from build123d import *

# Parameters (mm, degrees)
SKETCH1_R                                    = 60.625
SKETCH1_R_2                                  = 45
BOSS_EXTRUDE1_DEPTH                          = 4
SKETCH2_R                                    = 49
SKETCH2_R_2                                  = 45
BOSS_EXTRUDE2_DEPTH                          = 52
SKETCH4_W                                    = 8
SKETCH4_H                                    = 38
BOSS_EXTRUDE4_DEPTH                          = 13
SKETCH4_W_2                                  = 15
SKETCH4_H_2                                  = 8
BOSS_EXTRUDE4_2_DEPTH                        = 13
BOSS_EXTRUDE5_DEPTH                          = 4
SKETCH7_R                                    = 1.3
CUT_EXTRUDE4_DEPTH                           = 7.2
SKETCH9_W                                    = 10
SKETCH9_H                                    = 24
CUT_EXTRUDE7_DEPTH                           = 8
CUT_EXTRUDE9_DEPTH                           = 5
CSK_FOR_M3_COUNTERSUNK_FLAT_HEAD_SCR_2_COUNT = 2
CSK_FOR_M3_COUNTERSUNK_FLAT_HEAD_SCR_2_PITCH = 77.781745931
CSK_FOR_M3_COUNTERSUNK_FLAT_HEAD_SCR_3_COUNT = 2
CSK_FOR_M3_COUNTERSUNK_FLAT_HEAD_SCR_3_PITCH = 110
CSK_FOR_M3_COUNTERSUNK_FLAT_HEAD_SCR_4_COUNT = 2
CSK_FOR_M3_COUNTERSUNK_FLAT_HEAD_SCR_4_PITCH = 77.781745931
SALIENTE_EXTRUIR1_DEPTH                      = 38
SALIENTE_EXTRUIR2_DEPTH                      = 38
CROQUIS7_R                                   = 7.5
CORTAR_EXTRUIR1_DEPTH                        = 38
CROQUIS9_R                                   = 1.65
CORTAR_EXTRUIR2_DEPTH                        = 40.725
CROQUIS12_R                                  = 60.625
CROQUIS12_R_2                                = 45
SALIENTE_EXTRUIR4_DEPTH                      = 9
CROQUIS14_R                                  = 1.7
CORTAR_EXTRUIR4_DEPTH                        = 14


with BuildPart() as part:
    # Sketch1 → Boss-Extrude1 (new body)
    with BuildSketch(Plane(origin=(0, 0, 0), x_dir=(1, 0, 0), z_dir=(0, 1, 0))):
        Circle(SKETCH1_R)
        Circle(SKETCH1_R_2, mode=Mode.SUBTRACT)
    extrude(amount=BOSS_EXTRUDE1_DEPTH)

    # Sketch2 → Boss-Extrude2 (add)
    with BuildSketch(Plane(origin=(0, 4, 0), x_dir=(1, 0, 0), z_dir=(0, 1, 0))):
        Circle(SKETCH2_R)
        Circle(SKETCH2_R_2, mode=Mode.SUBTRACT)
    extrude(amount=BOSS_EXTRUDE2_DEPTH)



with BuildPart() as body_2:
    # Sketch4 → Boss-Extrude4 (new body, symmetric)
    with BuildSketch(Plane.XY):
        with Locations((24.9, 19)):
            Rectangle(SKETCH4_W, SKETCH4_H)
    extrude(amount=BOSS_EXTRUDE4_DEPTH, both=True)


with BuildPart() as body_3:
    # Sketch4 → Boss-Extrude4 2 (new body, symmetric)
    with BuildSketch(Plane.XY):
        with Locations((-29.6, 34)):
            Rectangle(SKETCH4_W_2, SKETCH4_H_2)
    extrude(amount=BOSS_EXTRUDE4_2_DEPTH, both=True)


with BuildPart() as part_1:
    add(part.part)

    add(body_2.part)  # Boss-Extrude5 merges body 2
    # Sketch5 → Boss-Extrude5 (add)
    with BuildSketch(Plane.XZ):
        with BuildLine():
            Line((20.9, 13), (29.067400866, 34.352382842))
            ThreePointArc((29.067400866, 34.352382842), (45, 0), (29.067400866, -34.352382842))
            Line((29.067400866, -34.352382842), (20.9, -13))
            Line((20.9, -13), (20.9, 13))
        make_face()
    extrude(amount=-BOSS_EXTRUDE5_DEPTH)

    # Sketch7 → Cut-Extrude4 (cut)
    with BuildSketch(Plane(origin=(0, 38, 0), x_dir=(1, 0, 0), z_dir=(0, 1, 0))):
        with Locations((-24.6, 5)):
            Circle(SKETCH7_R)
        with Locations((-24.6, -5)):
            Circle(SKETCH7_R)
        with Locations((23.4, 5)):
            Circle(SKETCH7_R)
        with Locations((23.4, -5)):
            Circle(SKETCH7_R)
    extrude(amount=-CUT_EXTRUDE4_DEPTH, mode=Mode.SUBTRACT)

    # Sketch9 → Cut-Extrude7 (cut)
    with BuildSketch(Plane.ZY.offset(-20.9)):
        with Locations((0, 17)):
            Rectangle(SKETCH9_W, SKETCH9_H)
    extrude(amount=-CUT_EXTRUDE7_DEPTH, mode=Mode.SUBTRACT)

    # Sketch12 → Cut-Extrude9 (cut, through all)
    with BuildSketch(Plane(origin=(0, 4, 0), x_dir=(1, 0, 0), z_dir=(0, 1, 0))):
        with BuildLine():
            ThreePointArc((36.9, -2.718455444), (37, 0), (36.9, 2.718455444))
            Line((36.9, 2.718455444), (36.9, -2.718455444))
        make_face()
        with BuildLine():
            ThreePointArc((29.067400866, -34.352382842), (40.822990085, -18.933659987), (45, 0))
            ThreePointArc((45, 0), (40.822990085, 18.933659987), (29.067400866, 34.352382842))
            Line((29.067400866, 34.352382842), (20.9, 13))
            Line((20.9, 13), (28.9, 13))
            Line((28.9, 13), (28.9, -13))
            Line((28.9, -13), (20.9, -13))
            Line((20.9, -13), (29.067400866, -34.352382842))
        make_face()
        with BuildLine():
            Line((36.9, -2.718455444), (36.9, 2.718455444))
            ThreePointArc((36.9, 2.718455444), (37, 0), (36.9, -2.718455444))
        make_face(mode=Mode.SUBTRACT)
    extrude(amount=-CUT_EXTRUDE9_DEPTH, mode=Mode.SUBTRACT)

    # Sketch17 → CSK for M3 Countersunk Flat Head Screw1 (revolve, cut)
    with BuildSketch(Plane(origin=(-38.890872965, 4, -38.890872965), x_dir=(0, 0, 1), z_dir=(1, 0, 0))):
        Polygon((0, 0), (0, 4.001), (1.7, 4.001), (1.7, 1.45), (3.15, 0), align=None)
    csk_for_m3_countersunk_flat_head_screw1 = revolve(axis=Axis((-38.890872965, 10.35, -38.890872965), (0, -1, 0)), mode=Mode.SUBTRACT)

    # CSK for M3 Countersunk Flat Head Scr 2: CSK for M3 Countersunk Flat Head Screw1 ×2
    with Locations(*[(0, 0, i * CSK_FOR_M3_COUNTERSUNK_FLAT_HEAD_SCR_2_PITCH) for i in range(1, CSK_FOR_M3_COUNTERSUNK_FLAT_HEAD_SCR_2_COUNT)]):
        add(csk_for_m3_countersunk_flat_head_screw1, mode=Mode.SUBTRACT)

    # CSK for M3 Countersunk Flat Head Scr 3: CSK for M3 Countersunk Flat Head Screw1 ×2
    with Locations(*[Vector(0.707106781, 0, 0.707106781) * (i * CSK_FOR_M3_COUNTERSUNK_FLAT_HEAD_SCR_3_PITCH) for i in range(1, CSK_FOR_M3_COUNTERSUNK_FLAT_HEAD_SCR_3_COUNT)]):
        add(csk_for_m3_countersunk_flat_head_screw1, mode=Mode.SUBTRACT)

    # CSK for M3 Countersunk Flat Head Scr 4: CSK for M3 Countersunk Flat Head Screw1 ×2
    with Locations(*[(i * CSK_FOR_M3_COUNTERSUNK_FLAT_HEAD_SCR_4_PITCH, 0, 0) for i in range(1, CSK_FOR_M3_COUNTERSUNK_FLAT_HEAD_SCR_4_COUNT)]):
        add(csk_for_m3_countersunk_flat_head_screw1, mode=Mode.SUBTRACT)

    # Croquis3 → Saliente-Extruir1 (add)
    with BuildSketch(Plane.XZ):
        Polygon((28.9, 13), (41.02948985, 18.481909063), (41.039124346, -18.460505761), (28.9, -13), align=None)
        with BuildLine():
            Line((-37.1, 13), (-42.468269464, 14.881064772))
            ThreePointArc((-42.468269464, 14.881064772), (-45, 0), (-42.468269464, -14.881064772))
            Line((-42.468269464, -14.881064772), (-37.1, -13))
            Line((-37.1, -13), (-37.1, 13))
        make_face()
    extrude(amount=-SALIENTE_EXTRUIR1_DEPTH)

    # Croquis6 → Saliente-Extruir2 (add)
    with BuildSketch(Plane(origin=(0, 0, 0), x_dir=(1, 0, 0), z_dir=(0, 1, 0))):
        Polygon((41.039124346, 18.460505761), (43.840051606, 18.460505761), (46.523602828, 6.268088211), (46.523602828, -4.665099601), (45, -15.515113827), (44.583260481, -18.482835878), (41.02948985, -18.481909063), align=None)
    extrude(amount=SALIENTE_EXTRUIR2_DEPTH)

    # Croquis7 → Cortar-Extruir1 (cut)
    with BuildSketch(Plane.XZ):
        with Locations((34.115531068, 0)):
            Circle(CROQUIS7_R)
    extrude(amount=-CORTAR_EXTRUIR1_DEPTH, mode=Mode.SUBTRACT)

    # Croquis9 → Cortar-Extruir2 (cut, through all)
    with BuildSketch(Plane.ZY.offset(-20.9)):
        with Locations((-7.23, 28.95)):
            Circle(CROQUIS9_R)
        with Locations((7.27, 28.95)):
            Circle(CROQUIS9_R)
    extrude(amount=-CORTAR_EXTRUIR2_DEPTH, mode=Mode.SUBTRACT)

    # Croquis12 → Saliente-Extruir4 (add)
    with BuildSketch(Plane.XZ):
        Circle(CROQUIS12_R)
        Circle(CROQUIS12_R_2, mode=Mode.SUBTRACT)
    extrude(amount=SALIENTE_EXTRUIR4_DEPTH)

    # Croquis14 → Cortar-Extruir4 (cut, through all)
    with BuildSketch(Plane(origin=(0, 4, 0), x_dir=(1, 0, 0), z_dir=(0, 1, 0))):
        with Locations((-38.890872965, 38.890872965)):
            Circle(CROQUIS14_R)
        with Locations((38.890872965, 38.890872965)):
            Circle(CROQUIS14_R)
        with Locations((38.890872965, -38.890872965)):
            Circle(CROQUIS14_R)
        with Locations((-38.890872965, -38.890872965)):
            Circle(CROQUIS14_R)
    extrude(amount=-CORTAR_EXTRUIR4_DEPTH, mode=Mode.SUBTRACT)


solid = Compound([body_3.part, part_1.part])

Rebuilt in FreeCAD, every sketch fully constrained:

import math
import FreeCAD as App
import Part
import Sketcher
Q = App.Units.Quantity


def add_polygon(sketch, points):
    """Adds a closed chain of lines whose ends are joined by coincident constraints."""
    first, n = sketch.GeometryCount, len(points)
    for a, b in zip(points, points[1:] + points[:1]):
        sketch.addGeometry(Part.LineSegment(App.Vector(*a, 0), App.Vector(*b, 0)), False)
    for i in range(n):
        sketch.addConstraint(Sketcher.Constraint("Coincident", first + i, 2, first + (i + 1) % n, 1))

doc = App.newDocument("Part")
body = doc.addObject("PartDesign::Body", "Body")

# Sketch on XZ plane
sketch1 = body.newObject("Sketcher::SketchObject", "Sketch")
sketch1.AttachmentSupport = (doc.getObject("XZ_Plane"), [""])
sketch1.MapMode = "FlatFace"
sketch1.addGeometry([
    Part.Circle(App.Vector(0, 0, 0), App.Vector(0, 0, 1), 60.625),
    Part.Circle(App.Vector(0, 0, 0), App.Vector(0, 0, 1), 45),
], False)
sketch1.addConstraint([
    Sketcher.Constraint("Coincident", 0, 3, -1, 1),
    Sketcher.Constraint("Coincident", 1, 3, -1, 1),
    Sketcher.Constraint("Diameter", 1, Q("90 mm")),
    Sketcher.Constraint("Diameter", 0, Q("121.25 mm")),
])
pad1 = body.newObject("PartDesign::Pad", "Pad")
pad1.Profile = sketch1
pad1.Length = 4
pad1.Reversed = True

# Sketch on XZ plane
sketch2 = body.newObject("Sketcher::SketchObject", "Sketch001")
sketch2.AttachmentSupport = (doc.getObject("XZ_Plane"), [""])
sketch2.MapMode = "FlatFace"
sketch2.AttachmentOffset = App.Placement(App.Vector(0, 0, -4), App.Rotation())
sketch2.addGeometry([
    Part.Circle(App.Vector(0, 0, 0), App.Vector(0, 0, 1), 49),
    Part.Circle(App.Vector(0, 0, 0), App.Vector(0, 0, 1), 45),
], False)
sketch2.addConstraint([
    Sketcher.Constraint("Coincident", 0, 3, -1, 1),
    Sketcher.Constraint("Coincident", 1, 3, -1, 1),
    Sketcher.Constraint("Diameter", 0, Q("98 mm")),
    Sketcher.Constraint("Diameter", 1, Q("90 mm")),
])
pad2 = body.newObject("PartDesign::Pad", "Pad001")
pad2.Profile = sketch2
pad2.Length = 52
pad2.Reversed = True
body2 = doc.addObject("PartDesign::Body", "Body001")

# Sketch on XY plane
sketch3 = body2.newObject("Sketcher::SketchObject", "Sketch002")
sketch3.AttachmentSupport = (doc.getObject("XY_Plane001"), [""])
sketch3.MapMode = "FlatFace"
add_polygon(sketch3, [(20.9, 38), (20.9, 0), (28.9, 0), (28.9, 38)])  # lines 0-3
sketch3.addConstraint([
    Sketcher.Constraint("Vertical", 0),
    Sketcher.Constraint("Horizontal", 1),
    Sketcher.Constraint("Vertical", 2),
    Sketcher.Constraint("Horizontal", 3),
    Sketcher.Constraint("PointOnObject", 0, 2, -1),
    Sketcher.Constraint("DistanceX", 1, 1, 1, 2, Q("8 mm")),
    Sketcher.Constraint("DistanceY", 0, 2, 0, 1, Q("38 mm")),
    Sketcher.Constraint("DistanceX", -1, 1, 0, 2, Q("20.9 mm")),
])
pad3 = body2.newObject("PartDesign::Pad", "Pad002")
pad3.Profile = sketch3
pad3.Length = 26
pad3.Midplane = True
body3 = doc.addObject("PartDesign::Body", "Body002")

# Sketch on XY plane
sketch4 = body3.newObject("Sketcher::SketchObject", "Sketch003")
sketch4.AttachmentSupport = (doc.getObject("XY_Plane002"), [""])
sketch4.MapMode = "FlatFace"
add_polygon(sketch4, [(-37.1, 38), (-37.1, 30), (-22.1, 30), (-22.1, 38)])  # lines 0-3
sketch4.addConstraint([
    Sketcher.Constraint("Vertical", 0),
    Sketcher.Constraint("Horizontal", 1),
    Sketcher.Constraint("Vertical", 2),
    Sketcher.Constraint("Horizontal", 3),
    Sketcher.Constraint("DistanceX", 1, 1, 1, 2, Q("15 mm")),
    Sketcher.Constraint("DistanceY", 0, 2, 0, 1, Q("8 mm")),
    Sketcher.Constraint("DistanceY", -1, 1, 0, 2, Q("30 mm")),
    Sketcher.Constraint("DistanceX", 0, 2, -1, 1, Q("37.1 mm")),
])
pad4 = body3.newObject("PartDesign::Pad", "Pad003")
pad4.Profile = sketch4
pad4.Length = 26
pad4.Midplane = True
body.AllowCompound = True
doc.recompute()

boolean = body.newObject("PartDesign::Boolean", "Boolean")
boolean.Type = "Fuse"
boolean.addObjects([body2])

# Sketch on XZ plane
sketch5 = body.newObject("Sketcher::SketchObject", "Sketch004")
sketch5.AttachmentSupport = (doc.getObject("XZ_Plane"), [""])
sketch5.MapMode = "FlatFace"
sketch5.addGeometry([
    Part.LineSegment(App.Vector(29.067401, 34.352383, 0), App.Vector(20.9, 13, 0)),
    Part.LineSegment(App.Vector(20.9, 13, 0), App.Vector(20.9, -13, 0)),
    Part.LineSegment(App.Vector(20.9, -13, 0), App.Vector(29.067401, -34.352383, 0)),
    Part.ArcOfCircle(Part.Circle(App.Vector(0, 0, 0), App.Vector(0, 0, 1), 45), math.radians(-49.763642), math.radians(49.763642)),
], False)
sketch5.addConstraint([
    Sketcher.Constraint("Coincident", 0, 2, 1, 1),
    Sketcher.Constraint("Coincident", 1, 2, 2, 1),
    Sketcher.Constraint("Coincident", 2, 2, 3, 1),
    Sketcher.Constraint("Coincident", 3, 2, 0, 1),
    Sketcher.Constraint("Vertical", 1),
    Sketcher.Constraint("Coincident", 3, 3, -1, 1),
    Sketcher.Constraint("Vertical", 2, 2, 3, 2),
    Sketcher.Constraint("Equal", 0, 2),
    Sketcher.Constraint("Radius", 3, Q("45 mm")),
    Sketcher.Constraint("DistanceY", 1, 2, 1, 1, Q("26 mm")),
    Sketcher.Constraint("DistanceX", -1, 1, 0, 2, Q("20.9 mm")),
    Sketcher.Constraint("DistanceX", -1, 1, 2, 2, Q("29.067401 mm")),
])
pad5 = body.newObject("PartDesign::Pad", "Pad004")
pad5.Profile = sketch5
pad5.Length = 4
pad5.Reversed = True

# Sketch on XZ plane
sketch6 = body.newObject("Sketcher::SketchObject", "Sketch005")
sketch6.AttachmentSupport = (doc.getObject("XZ_Plane"), [""])
sketch6.MapMode = "FlatFace"
sketch6.AttachmentOffset = App.Placement(App.Vector(0, 0, -38), App.Rotation())
sketch6.addGeometry([
    Part.Circle(App.Vector(-24.6, -5, 0), App.Vector(0, 0, 1), 1.3),
    Part.Circle(App.Vector(-24.6, 5, 0), App.Vector(0, 0, 1), 1.3),
    Part.Circle(App.Vector(23.4, -5, 0), App.Vector(0, 0, 1), 1.3),
    Part.Circle(App.Vector(23.4, 5, 0), App.Vector(0, 0, 1), 1.3),
], False)
sketch6.addConstraint([
    Sketcher.Constraint("Equal", 0, 1),
    Sketcher.Constraint("Equal", 1, 2),
    Sketcher.Constraint("Equal", 2, 3),
    Sketcher.Constraint("Symmetric", 0, 3, 1, 3, -1),
    Sketcher.Constraint("Symmetric", 2, 3, 3, 3, -1),
    Sketcher.Constraint("Horizontal", 0, 3, 2, 3),
    Sketcher.Constraint("Diameter", 0, Q("2.6 mm")),
    Sketcher.Constraint("DistanceY", 0, 3, -1, 1, Q("5 mm")),
    Sketcher.Constraint("DistanceX", 0, 3, 2, 3, Q("48 mm")),
    Sketcher.Constraint("DistanceX", 0, 3, -1, 1, Q("24.6 mm")),
])
pocket1 = body.newObject("PartDesign::Pocket", "Pocket")
pocket1.Profile = sketch6
pocket1.Length = 7.2
pocket1.Reversed = True

# Sketch on YZ plane
sketch7 = body.newObject("Sketcher::SketchObject", "Sketch006")
sketch7.AttachmentSupport = (doc.getObject("YZ_Plane"), [""])
sketch7.MapMode = "FlatFace"
sketch7.AttachmentOffset = App.Placement(App.Vector(0, 0, 20.9), App.Rotation())
add_polygon(sketch7, [(29, -5), (5, -5), (5, 5), (29, 5)])  # lines 0-3
sketch7.addConstraint([
    Sketcher.Constraint("Horizontal", 0),
    Sketcher.Constraint("Vertical", 1),
    Sketcher.Constraint("Horizontal", 2),
    Sketcher.Constraint("Vertical", 3),
    Sketcher.Constraint("DistanceX", 0, 2, 0, 1, Q("24 mm")),
    Sketcher.Constraint("DistanceY", 1, 1, 1, 2, Q("10 mm")),
    Sketcher.Constraint("DistanceX", -1, 1, 0, 2, Q("5 mm")),
    Sketcher.Constraint("DistanceY", 0, 2, -1, 1, Q("5 mm")),
])
pocket2 = body.newObject("PartDesign::Pocket", "Pocket001")
pocket2.Profile = sketch7
pocket2.Length = 8
pocket2.Reversed = True

# Sketch on XZ plane
sketch8 = body.newObject("Sketcher::SketchObject", "Sketch007")
sketch8.AttachmentSupport = (doc.getObject("XZ_Plane"), [""])
sketch8.MapMode = "FlatFace"
sketch8.AttachmentOffset = App.Placement(App.Vector(0, 0, -4), App.Rotation())
sketch8.addGeometry([
    Part.ArcOfCircle(Part.Circle(App.Vector(0, 0, 0), App.Vector(0, 0, 1), 45), math.radians(0), math.radians(49.763642)),  # 0
    Part.ArcOfCircle(Part.Circle(App.Vector(0, 0, 0), App.Vector(0, 0, 1), 45), math.radians(-49.763642), math.radians(0)),  # 1
    Part.LineSegment(App.Vector(29.067401, -34.352383, 0), App.Vector(20.9, -13, 0)),  # 2
    Part.LineSegment(App.Vector(20.9, -13, 0), App.Vector(28.9, -13, 0)),  # 3
    Part.LineSegment(App.Vector(28.9, -13, 0), App.Vector(28.9, 13, 0)),  # 4
    Part.LineSegment(App.Vector(28.9, 13, 0), App.Vector(20.9, 13, 0)),  # 5
    Part.LineSegment(App.Vector(20.9, 13, 0), App.Vector(29.067401, 34.352383, 0)),  # 6
    Part.ArcOfCircle(Part.Circle(App.Vector(0, 0, 0), App.Vector(0, 0, 1), 37), math.radians(-4.213419), math.radians(4.213419)),  # 7
    Part.LineSegment(App.Vector(36.9, 2.718455, 0), App.Vector(36.9, -2.718455, 0)),  # 8
], False)
sketch8.addConstraint([
    Sketcher.Constraint("Tangent", 0, 1, 1, 2),
    Sketcher.Constraint("Coincident", 1, 1, 2, 1),
    Sketcher.Constraint("Coincident", 2, 2, 3, 1),
    Sketcher.Constraint("Coincident", 3, 2, 4, 1),
    Sketcher.Constraint("Coincident", 4, 2, 5, 1),
    Sketcher.Constraint("Coincident", 5, 2, 6, 1),
    Sketcher.Constraint("Coincident", 6, 2, 0, 2),
    Sketcher.Constraint("Coincident", 7, 1, 8, 2),
    Sketcher.Constraint("Coincident", 8, 1, 7, 2),
    Sketcher.Constraint("Horizontal", 3),
    Sketcher.Constraint("Vertical", 4),
    Sketcher.Constraint("Horizontal", 5),
    Sketcher.Constraint("Vertical", 8),
    Sketcher.Constraint("Coincident", 0, 3, -1, 1),
    Sketcher.Constraint("Coincident", 7, 3, -1, 1),
    Sketcher.Constraint("Equal", 0, 1),
    Sketcher.Constraint("Symmetric", 2, 2, 5, 2, -1),
    Sketcher.Constraint("PointOnObject", 0, 1, -1),
    Sketcher.Constraint("Vertical", 1, 1, 6, 2),
    Sketcher.Constraint("Radius", 0, Q("45 mm")),
    Sketcher.Constraint("Radius", 7, Q("37 mm")),
    Sketcher.Constraint("DistanceX", 3, 1, 3, 2, Q("8 mm")),
    Sketcher.Constraint("DistanceY", 4, 1, 4, 2, Q("26 mm")),
    Sketcher.Constraint("DistanceX", 3, 2, 7, 1, Q("8 mm")),
    Sketcher.Constraint("DistanceX", -1, 1, 2, 2, Q("20.9 mm")),
    Sketcher.Constraint("DistanceX", -1, 1, 1, 1, Q("29.067401 mm")),
])
pocket3 = body.newObject("PartDesign::Pocket", "Pocket002")
pocket3.Profile = sketch8
pocket3.Type = "ThroughAll"
pocket3.Reversed = True

# Sketch on YZ plane
sketch9 = body.newObject("Sketcher::SketchObject", "Sketch008")
sketch9.AttachmentSupport = (doc.getObject("YZ_Plane"), [""])
sketch9.MapMode = "FlatFace"
sketch9.AttachmentOffset = App.Placement(App.Vector(0, 0, -38.890873), App.Rotation())
add_polygon(sketch9, [(-0.001, -38.890873), (4, -38.890873), (4, -35.740873), (2.55, -37.190873), (-0.001, -37.190873)])  # lines 0-4
sketch9.addGeometry(Part.LineSegment(App.Vector(4, -38.890873, 0), App.Vector(-0.001, -38.890873, 0)), True)  # axis
sketch9.addConstraint([
    Sketcher.Constraint("Horizontal", 0),
    Sketcher.Constraint("Vertical", 1),
    Sketcher.Constraint("Horizontal", 3),
    Sketcher.Constraint("Vertical", 4),
    Sketcher.Constraint("Horizontal", 5),
    Sketcher.Constraint("Coincident", 5, 1, 0, 2),
    Sketcher.Constraint("Vertical", 3, 2, 5, 2),
    Sketcher.Constraint("Angle", 2, Q("-135 deg")),
    Sketcher.Constraint("DistanceY", 4, 2, 4, 1, Q("1.7 mm")),
    Sketcher.Constraint("DistanceX", -1, 1, 0, 2, Q("4 mm")),
    Sketcher.Constraint("DistanceY", 1, 1, 1, 2, Q("3.15 mm")),
    Sketcher.Constraint("DistanceX", 0, 1, 0, 2, Q("4.001 mm")),
    Sketcher.Constraint("DistanceY", 0, 2, -1, 1, Q("38.890873 mm")),
])
groove = body.newObject("PartDesign::Groove", "Groove")
groove.Profile = sketch9
groove.ReferenceAxis = (sketch9, ["Axis0"])
groove.Angle = 360
doc.recompute()

linearpattern = body.newObject("PartDesign::LinearPattern", "LinearPattern")
linearpattern.Originals = [groove]
linearpattern.Direction = (doc.getObject("Z_Axis"), [""])
linearpattern.Mode = "offset"
linearpattern.Offset = 77.781746
linearpattern.Occurrences = 2
body.Tip = linearpattern
doc.recompute()

datumline = body.newObject("PartDesign::Line", "DatumLine")
datumline.Placement = App.Placement(App.Vector(0, 0, 0), App.Rotation(App.Vector(0, 0, 1), App.Vector(0.707106781, 0, 0.707106781)))
linearpattern2 = body.newObject("PartDesign::LinearPattern", "LinearPattern001")
linearpattern2.Originals = [groove]
linearpattern2.Direction = (datumline, [""])
linearpattern2.Mode = "offset"
linearpattern2.Offset = 110
linearpattern2.Occurrences = 2
body.Tip = linearpattern2
doc.recompute()

linearpattern3 = body.newObject("PartDesign::LinearPattern", "LinearPattern002")
linearpattern3.Originals = [groove]
linearpattern3.Direction = (doc.getObject("X_Axis"), [""])
linearpattern3.Mode = "offset"
linearpattern3.Offset = 77.781746
linearpattern3.Occurrences = 2
body.Tip = linearpattern3

# Sketch on XZ plane
sketch10 = body.newObject("Sketcher::SketchObject", "Sketch009")
sketch10.AttachmentSupport = (doc.getObject("XZ_Plane"), [""])
sketch10.MapMode = "FlatFace"
add_polygon(sketch10, [(41.02949, 18.481909), (28.9, 13), (28.9, -13), (41.039124, -18.460506)])  # lines 0-3
sketch10.addGeometry(Part.LineSegment(App.Vector(-37.1, 13, 0), App.Vector(-42.468269, 14.881065, 0)), False)  # 4
sketch10.addGeometry(Part.ArcOfCircle(Part.Circle(App.Vector(0, 0, 0), App.Vector(0, 0, 1), 45), math.radians(160.689319), math.radians(199.310681)), False)  # 5
sketch10.addGeometry(Part.LineSegment(App.Vector(-42.468269, -14.881065, 0), App.Vector(-37.1, -13, 0)), False)  # 6
sketch10.addGeometry(Part.LineSegment(App.Vector(-37.1, -13, 0), App.Vector(-37.1, 13, 0)), False)  # 7
sketch10.addConstraint([
    Sketcher.Constraint("Coincident", 4, 2, 5, 1),
    Sketcher.Constraint("Coincident", 5, 2, 6, 1),
    Sketcher.Constraint("Coincident", 6, 2, 7, 1),
    Sketcher.Constraint("Coincident", 7, 2, 4, 1),
    Sketcher.Constraint("Vertical", 1),
    Sketcher.Constraint("Vertical", 7),
    Sketcher.Constraint("Coincident", 5, 3, -1, 1),
    Sketcher.Constraint("Horizontal", 1, 2, 6, 2),
    Sketcher.Constraint("Horizontal", 0, 2, 7, 2),
    Sketcher.Constraint("Vertical", 4, 2, 5, 2),
    Sketcher.Constraint("Equal", 4, 6),
    Sketcher.Constraint("Radius", 5, Q("45 mm")),
    Sketcher.Constraint("DistanceY", 1, 2, 1, 1, Q("26 mm")),
    Sketcher.Constraint("DistanceX", 6, 2, 1, 2, Q("66 mm")),
    Sketcher.Constraint("DistanceX", -1, 1, 0, 2, Q("28.9 mm")),
    Sketcher.Constraint("Distance", 0, Q("13.310742 mm")),
    Sketcher.Constraint("DistanceX", -1, 1, 3, 2, Q("41.02949 mm")),
    Sketcher.Constraint("DistanceX", 4, 2, -1, 1, Q("42.468269 mm")),
    Sketcher.Constraint("DistanceY", 2, 2, 4, 2, Q("33.341571 mm")),
    Sketcher.Constraint("Distance", 2, Q("13.310727 mm")),
])
pad6 = body.newObject("PartDesign::Pad", "Pad005")
pad6.Profile = sketch10
pad6.Length = 38
pad6.Reversed = True

# Sketch on XZ plane
sketch11 = body.newObject("Sketcher::SketchObject", "Sketch010")
sketch11.AttachmentSupport = (doc.getObject("XZ_Plane"), [""])
sketch11.MapMode = "FlatFace"
add_polygon(sketch11, [(43.840052, -18.460506), (41.039124, -18.460506), (41.02949, 18.481909), (44.58326, 18.482836), (45, 15.515114), (46.523603, 4.6651), (46.523603, -6.268088)])  # lines 0-6
sketch11.addConstraint([
    Sketcher.Constraint("Horizontal", 0),
    Sketcher.Constraint("Vertical", 5),
    Sketcher.Constraint("Perpendicular", 1, 2),
    Sketcher.Constraint("Parallel", 3, 4),
    Sketcher.Constraint("DistanceX", -1, 1, 3, 2, Q("45 mm")),
    Sketcher.Constraint("DistanceY", -1, 1, 4, 2, Q("4.6651 mm")),
    Sketcher.Constraint("Distance", 2, Q("3.553771 mm")),
    Sketcher.Constraint("Distance", 3, Q("2.996839 mm")),
    Sketcher.Constraint("Distance", 6, Q("12.48425 mm")),
    Sketcher.Constraint("DistanceX", 0, 2, 0, 1, Q("2.800927 mm")),
    Sketcher.Constraint("DistanceY", 5, 2, 5, 1, Q("10.933188 mm")),
    Sketcher.Constraint("DistanceX", -1, 1, 1, 2, Q("41.02949 mm")),
    Sketcher.Constraint("DistanceY", -1, 1, 1, 2, Q("18.481909 mm")),
    Sketcher.Constraint("DistanceX", -1, 1, 6, 2, Q("43.840052 mm")),
])
pad7 = body.newObject("PartDesign::Pad", "Pad006")
pad7.Profile = sketch11
pad7.Length = 38
pad7.Reversed = True

# Sketch on XZ plane
sketch12 = body.newObject("Sketcher::SketchObject", "Sketch011")
sketch12.AttachmentSupport = (doc.getObject("XZ_Plane"), [""])
sketch12.MapMode = "FlatFace"
sketch12.addGeometry(Part.Circle(App.Vector(34.115531, 0, 0), App.Vector(0, 0, 1), 7.5), False)
sketch12.addConstraint([
    Sketcher.Constraint("PointOnObject", 0, 3, -1),
    Sketcher.Constraint("Diameter", 0, Q("15 mm")),
    Sketcher.Constraint("DistanceX", -1, 1, 0, 3, Q("34.115531 mm")),
])
pocket4 = body.newObject("PartDesign::Pocket", "Pocket003")
pocket4.Profile = sketch12
pocket4.Length = 38

# Sketch on YZ plane
sketch13 = body.newObject("Sketcher::SketchObject", "Sketch012")
sketch13.AttachmentSupport = (doc.getObject("YZ_Plane"), [""])
sketch13.MapMode = "FlatFace"
sketch13.AttachmentOffset = App.Placement(App.Vector(0, 0, 20.9), App.Rotation())
sketch13.addGeometry([
    Part.Circle(App.Vector(28.95, -7.23, 0), App.Vector(0, 0, 1), 1.65),
    Part.Circle(App.Vector(28.95, 7.27, 0), App.Vector(0, 0, 1), 1.65),
], False)
sketch13.addConstraint([
    Sketcher.Constraint("Equal", 0, 1),
    Sketcher.Constraint("Vertical", 0, 3, 1, 3),
    Sketcher.Constraint("Diameter", 0, Q("3.3 mm")),
    Sketcher.Constraint("DistanceY", 0, 3, 1, 3, Q("14.5 mm")),
    Sketcher.Constraint("DistanceX", -1, 1, 0, 3, Q("28.95 mm")),
    Sketcher.Constraint("DistanceY", 0, 3, -1, 1, Q("7.23 mm")),
])
pocket5 = body.newObject("PartDesign::Pocket", "Pocket004")
pocket5.Profile = sketch13
pocket5.Type = "ThroughAll"
pocket5.Reversed = True

# Sketch on XZ plane
sketch14 = body.newObject("Sketcher::SketchObject", "Sketch013")
sketch14.AttachmentSupport = (doc.getObject("XZ_Plane"), [""])
sketch14.MapMode = "FlatFace"
sketch14.addGeometry([
    Part.Circle(App.Vector(0, 0, 0), App.Vector(0, 0, 1), 60.625),
    Part.Circle(App.Vector(0, 0, 0), App.Vector(0, 0, 1), 45),
], False)
sketch14.addConstraint([
    Sketcher.Constraint("Coincident", 0, 3, -1, 1),
    Sketcher.Constraint("Coincident", 1, 3, -1, 1),
    Sketcher.Constraint("Diameter", 1, Q("90 mm")),
    Sketcher.Constraint("Diameter", 0, Q("121.25 mm")),
])
pad8 = body.newObject("PartDesign::Pad", "Pad007")
pad8.Profile = sketch14
pad8.Length = 9

# Sketch on XZ plane
sketch15 = body.newObject("Sketcher::SketchObject", "Sketch014")
sketch15.AttachmentSupport = (doc.getObject("XZ_Plane"), [""])
sketch15.MapMode = "FlatFace"
sketch15.AttachmentOffset = App.Placement(App.Vector(0, 0, -4), App.Rotation())
sketch15.addGeometry([
    Part.Circle(App.Vector(-38.890873, -38.890873, 0), App.Vector(0, 0, 1), 1.7),
    Part.Circle(App.Vector(38.890873, -38.890873, 0), App.Vector(0, 0, 1), 1.7),
    Part.Circle(App.Vector(38.890873, 38.890873, 0), App.Vector(0, 0, 1), 1.7),
    Part.Circle(App.Vector(-38.890873, 38.890873, 0), App.Vector(0, 0, 1), 1.7),
], False)
sketch15.addConstraint([
    Sketcher.Constraint("Equal", 0, 1),
    Sketcher.Constraint("Equal", 1, 2),
    Sketcher.Constraint("Equal", 2, 3),
    Sketcher.Constraint("Symmetric", 0, 3, 2, 3, -1, 1),
    Sketcher.Constraint("Symmetric", 1, 3, 3, 3, -1, 1),
    Sketcher.Constraint("Symmetric", 0, 3, 1, 3, -2),
    Sketcher.Constraint("Diameter", 0, Q("3.4 mm")),
    Sketcher.Constraint("DistanceX", 0, 3, -1, 1, Q("38.890873 mm")),
    Sketcher.Constraint("DistanceY", 0, 3, -1, 1, Q("38.890873 mm")),
])
pocket6 = body.newObject("PartDesign::Pocket", "Pocket005")
pocket6.Profile = sketch15
pocket6.Type = "ThroughAll"
pocket6.Reversed = True

doc.recompute()
